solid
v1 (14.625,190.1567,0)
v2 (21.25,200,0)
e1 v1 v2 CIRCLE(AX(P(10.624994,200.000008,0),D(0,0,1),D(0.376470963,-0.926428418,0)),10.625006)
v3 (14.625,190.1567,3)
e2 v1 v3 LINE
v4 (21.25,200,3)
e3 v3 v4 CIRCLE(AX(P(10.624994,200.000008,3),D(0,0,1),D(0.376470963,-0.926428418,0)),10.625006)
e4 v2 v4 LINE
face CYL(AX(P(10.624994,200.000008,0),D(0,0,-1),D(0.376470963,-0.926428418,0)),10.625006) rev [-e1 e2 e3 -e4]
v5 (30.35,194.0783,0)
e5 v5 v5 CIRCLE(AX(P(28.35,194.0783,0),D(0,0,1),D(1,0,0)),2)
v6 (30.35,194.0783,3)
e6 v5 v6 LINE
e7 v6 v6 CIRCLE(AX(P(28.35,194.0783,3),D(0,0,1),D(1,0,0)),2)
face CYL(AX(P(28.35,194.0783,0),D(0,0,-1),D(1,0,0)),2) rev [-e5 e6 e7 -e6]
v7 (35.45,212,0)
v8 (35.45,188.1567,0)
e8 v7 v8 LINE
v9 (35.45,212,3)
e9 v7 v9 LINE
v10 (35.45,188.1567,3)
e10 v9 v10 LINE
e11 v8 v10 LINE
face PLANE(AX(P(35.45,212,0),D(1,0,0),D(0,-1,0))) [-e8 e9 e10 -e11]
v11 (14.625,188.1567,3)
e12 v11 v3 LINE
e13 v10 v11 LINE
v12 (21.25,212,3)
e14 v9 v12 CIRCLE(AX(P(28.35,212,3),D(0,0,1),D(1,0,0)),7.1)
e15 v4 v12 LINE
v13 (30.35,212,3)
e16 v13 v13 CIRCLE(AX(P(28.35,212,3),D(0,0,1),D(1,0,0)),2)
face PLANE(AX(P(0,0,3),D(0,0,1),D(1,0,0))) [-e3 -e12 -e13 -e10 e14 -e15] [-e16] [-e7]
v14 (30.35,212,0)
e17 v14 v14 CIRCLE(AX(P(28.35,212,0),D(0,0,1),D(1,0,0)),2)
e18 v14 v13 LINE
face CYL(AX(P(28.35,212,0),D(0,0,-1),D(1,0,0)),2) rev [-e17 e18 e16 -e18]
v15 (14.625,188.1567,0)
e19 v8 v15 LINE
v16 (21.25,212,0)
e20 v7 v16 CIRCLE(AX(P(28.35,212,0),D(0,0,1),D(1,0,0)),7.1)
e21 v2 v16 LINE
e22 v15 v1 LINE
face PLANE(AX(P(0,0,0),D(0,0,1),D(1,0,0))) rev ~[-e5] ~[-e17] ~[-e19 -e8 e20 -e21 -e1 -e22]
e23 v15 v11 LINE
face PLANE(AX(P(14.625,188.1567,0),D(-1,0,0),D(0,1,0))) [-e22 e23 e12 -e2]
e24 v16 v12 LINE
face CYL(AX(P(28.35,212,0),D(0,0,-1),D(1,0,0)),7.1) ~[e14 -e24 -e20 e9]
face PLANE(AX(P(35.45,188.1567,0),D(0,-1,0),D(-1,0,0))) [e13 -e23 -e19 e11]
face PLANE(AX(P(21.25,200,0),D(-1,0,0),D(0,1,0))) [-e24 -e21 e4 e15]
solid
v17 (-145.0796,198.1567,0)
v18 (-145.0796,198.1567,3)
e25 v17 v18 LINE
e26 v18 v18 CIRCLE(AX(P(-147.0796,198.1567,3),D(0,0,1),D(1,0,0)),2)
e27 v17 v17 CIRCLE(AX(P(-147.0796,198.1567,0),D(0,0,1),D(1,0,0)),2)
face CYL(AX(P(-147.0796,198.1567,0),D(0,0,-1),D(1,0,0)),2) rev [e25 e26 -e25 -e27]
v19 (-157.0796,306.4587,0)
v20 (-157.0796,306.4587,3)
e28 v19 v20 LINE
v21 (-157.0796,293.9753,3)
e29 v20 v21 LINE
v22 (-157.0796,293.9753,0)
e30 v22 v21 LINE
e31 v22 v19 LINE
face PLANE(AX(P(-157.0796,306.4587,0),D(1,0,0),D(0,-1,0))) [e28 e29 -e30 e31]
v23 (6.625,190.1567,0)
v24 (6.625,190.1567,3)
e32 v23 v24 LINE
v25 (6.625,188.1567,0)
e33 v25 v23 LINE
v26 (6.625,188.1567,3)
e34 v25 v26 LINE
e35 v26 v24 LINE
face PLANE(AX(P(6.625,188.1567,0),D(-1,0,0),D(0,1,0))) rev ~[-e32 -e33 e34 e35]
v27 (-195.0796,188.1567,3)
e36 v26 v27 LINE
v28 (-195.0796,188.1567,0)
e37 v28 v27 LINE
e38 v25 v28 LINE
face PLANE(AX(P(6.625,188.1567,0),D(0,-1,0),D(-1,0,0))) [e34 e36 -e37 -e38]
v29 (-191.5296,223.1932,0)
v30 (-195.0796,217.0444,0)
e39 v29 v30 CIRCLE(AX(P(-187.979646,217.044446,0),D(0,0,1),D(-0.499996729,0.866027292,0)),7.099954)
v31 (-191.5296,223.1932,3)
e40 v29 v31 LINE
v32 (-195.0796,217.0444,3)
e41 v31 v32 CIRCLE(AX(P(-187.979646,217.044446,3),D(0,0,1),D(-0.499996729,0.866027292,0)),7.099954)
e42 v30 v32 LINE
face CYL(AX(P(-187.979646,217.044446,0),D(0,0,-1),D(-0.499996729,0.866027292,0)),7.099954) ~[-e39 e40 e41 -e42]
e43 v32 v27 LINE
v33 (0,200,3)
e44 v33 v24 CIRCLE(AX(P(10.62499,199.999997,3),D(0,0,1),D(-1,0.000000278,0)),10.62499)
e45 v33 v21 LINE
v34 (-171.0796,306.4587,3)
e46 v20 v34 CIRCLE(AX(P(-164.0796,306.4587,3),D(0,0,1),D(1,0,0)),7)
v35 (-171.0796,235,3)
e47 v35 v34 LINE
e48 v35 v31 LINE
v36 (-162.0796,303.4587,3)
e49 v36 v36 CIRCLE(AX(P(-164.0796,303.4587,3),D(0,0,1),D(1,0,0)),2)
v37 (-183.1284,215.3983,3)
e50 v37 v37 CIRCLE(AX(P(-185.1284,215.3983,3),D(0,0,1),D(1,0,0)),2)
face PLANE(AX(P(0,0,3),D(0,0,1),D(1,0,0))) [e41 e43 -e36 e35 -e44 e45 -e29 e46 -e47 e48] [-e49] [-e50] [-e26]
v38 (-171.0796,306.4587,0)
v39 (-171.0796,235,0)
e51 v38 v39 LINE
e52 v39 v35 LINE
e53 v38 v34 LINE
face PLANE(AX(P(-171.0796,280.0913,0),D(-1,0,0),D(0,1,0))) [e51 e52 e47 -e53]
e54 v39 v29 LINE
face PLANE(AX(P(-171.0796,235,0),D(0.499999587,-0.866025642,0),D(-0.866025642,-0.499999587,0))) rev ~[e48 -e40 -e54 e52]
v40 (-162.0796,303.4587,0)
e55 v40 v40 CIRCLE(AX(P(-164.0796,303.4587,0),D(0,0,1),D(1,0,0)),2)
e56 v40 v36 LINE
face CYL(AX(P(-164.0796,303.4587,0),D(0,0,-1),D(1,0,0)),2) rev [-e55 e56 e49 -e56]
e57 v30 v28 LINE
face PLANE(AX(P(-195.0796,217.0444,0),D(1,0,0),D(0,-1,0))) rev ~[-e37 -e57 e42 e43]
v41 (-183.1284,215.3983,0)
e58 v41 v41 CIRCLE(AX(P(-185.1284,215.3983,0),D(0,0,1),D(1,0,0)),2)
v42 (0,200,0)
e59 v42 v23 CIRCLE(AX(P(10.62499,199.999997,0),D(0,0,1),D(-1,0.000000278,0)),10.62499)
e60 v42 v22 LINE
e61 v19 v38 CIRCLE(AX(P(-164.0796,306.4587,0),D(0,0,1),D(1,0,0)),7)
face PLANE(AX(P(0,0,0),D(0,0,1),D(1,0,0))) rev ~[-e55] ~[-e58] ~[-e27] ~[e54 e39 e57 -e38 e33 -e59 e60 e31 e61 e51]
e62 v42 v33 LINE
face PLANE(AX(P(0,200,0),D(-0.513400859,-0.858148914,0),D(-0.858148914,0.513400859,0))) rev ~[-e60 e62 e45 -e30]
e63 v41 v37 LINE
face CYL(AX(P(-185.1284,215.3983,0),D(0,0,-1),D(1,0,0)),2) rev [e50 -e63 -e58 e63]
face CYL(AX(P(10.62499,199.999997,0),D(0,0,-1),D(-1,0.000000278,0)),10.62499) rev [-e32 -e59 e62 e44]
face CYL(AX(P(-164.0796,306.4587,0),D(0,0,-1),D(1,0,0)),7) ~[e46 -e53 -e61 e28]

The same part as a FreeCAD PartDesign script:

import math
import FreeCAD as App
import Part
import Sketcher
from FreeCAD import Vector
Q = App.Units.Quantity

doc = App.newDocument("Part")
params = doc.addObject("Spreadsheet::Sheet", "Params")
for row, (alias, value) in enumerate([
    ("sketch1_diameter", "4 mm"),
    ("sketch1_radius", "7 mm"),
    ("sketch1_radius2", "7.1 mm"),
    ("sketch1_height", "2 mm"),
    ("sketch1_height2", "12 mm"),
    ("pad1_length", "3 mm"),
], start=1):
    params.set(f"A{row}", alias)
    params.set(f"B{row}", "=" + value)
    params.setAlias(f"B{row}", alias)

body = doc.addObject("PartDesign::Body", "Body")
body.AllowCompound = True

sketch1 = body.newObject("Sketcher::SketchObject", "Sketch")
sketch1.AttachmentSupport = (doc.getObject("XY_Plane"), [""])
sketch1.MapMode = "FlatFace"
sketch1.addGeometry(Part.LineSegment(Vector(-171.1, 306.5, 0), Vector(-171.1, 235, 0)), False)
sketch1.addGeometry(Part.LineSegment(Vector(-171.1, 235, 0), Vector(-191.5, 223.2, 0)), False)
sketch1.addGeometry(Part.ArcOfCircle(Part.Circle(Vector(-188, 217, 0), Vector(0, 0, 1), 7.1), math.radians(120), math.radians(180)), False)
sketch1.addGeometry(Part.LineSegment(Vector(-195.1, 217, 0), Vector(-195.1, 188.2, 0)), False)
sketch1.addGeometry(Part.LineSegment(Vector(-195.1, 188.2, 0), Vector(6.6, 188.2, 0)), False)
sketch1.addGeometry(Part.LineSegment(Vector(6.6, 188.2, 0), Vector(6.6, 190.2, 0)), False)
sketch1.addGeometry(Part.ArcOfCircle(Part.Circle(Vector(10.6, 200, 0), Vector(0, 0, 1), 10.6), math.radians(180), math.radians(248)), False)
sketch1.addGeometry(Part.LineSegment(Vector(0, 200, 0), Vector(-157.1, 294, 0)), False)
sketch1.addGeometry(Part.LineSegment(Vector(-157.1, 294, 0), Vector(-157.1, 306.5, 0)), False)
sketch1.addGeometry(Part.ArcOfCircle(Part.Circle(Vector(-164.1, 306.5, 0), Vector(0, 0, 1), 7), math.radians(0), math.radians(180)), False)
sketch1.addGeometry(Part.Circle(Vector(-185.1, 215.4, 0), Vector(0, 0, 1), 2), False)
sketch1.addGeometry(Part.Circle(Vector(-147.1, 198.2, 0), Vector(0, 0, 1), 2), False)
sketch1.addGeometry(Part.Circle(Vector(-164.1, 303.5, 0), Vector(0, 0, 1), 2), False)
sketch1.addGeometry(Part.LineSegment(Vector(35.5, 188.2, 0), Vector(35.5, 212, 0)), False)
sketch1.addGeometry(Part.ArcOfCircle(Part.Circle(Vector(28.4, 212, 0), Vector(0, 0, 1), 7.1), math.radians(0), math.radians(180)), False)
sketch1.addGeometry(Part.LineSegment(Vector(21.2, 212, 0), Vector(21.2, 200, 0)), False)
sketch1.addGeometry(Part.ArcOfCircle(Part.Circle(Vector(10.6, 200, 0), Vector(0, 0, 1), 10.6), math.radians(-68), math.radians(0)), False)
sketch1.addGeometry(Part.LineSegment(Vector(14.6, 190.2, 0), Vector(14.6, 188.2, 0)), False)
sketch1.addGeometry(Part.LineSegment(Vector(14.6, 188.2, 0), Vector(35.5, 188.2, 0)), False)
sketch1.addGeometry(Part.Circle(Vector(28.4, 194.1, 0), Vector(0, 0, 1), 2), False)
sketch1.addGeometry(Part.Circle(Vector(28.4, 212, 0), Vector(0, 0, 1), 2), False)
sketch1.addConstraint(Sketcher.Constraint("Coincident", 0, 2, 1, 1))
sketch1.addConstraint(Sketcher.Constraint("Tangent", 1, 2, 2, 1))
sketch1.addConstraint(Sketcher.Constraint("Tangent", 2, 2, 3, 1))
sketch1.addConstraint(Sketcher.Constraint("Coincident", 3, 2, 4, 1))
sketch1.addConstraint(Sketcher.Constraint("Coincident", 4, 2, 5, 1))
sketch1.addConstraint(Sketcher.Constraint("Coincident", 5, 2, 6, 2))
sketch1.addConstraint(Sketcher.Constraint("Coincident", 6, 1, 7, 1))
sketch1.addConstraint(Sketcher.Constraint("Coincident", 7, 2, 8, 1))
sketch1.addConstraint(Sketcher.Constraint("Tangent", 8, 2, 9, 1))
sketch1.addConstraint(Sketcher.Constraint("Tangent", 9, 2, 0, 1))
sketch1.addConstraint(Sketcher.Constraint("Tangent", 13, 2, 14, 1))
sketch1.addConstraint(Sketcher.Constraint("Tangent", 14, 2, 15, 1))
sketch1.addConstraint(Sketcher.Constraint("Tangent", 15, 2, 16, 2))
sketch1.addConstraint(Sketcher.Constraint("Coincident", 16, 1, 17, 1))
sketch1.addConstraint(Sketcher.Constraint("Coincident", 17, 2, 18, 1))
sketch1.addConstraint(Sketcher.Constraint("Coincident", 18, 2, 13, 1))
sketch1.addConstraint(Sketcher.Constraint("Vertical", 0))
sketch1.addConstraint(Sketcher.Constraint("Vertical", 3))
sketch1.addConstraint(Sketcher.Constraint("Horizontal", 4))
sketch1.addConstraint(Sketcher.Constraint("Vertical", 5))
sketch1.addConstraint(Sketcher.Constraint("Vertical", 8))
sketch1.addConstraint(Sketcher.Constraint("Vertical", 13))
sketch1.addConstraint(Sketcher.Constraint("Vertical", 15))
sketch1.addConstraint(Sketcher.Constraint("Vertical", 17))
sketch1.addConstraint(Sketcher.Constraint("Horizontal", 18))
sketch1.addConstraint(Sketcher.Constraint("Coincident", 16, 3, 6, 3))
sketch1.addConstraint(Sketcher.Constraint("Coincident", 20, 3, 14, 3))
sketch1.addConstraint(Sketcher.Constraint("Equal", 10, 11))
sketch1.addConstraint(Sketcher.Constraint("Equal", 11, 12))
sketch1.addConstraint(Sketcher.Constraint("Equal", 2, 14))
sketch1.addConstraint(Sketcher.Constraint("Equal", 6, 16))
sketch1.addConstraint(Sketcher.Constraint("Equal", 12, 19))
sketch1.addConstraint(Sketcher.Constraint("Equal", 19, 20))
sketch1.addConstraint(Sketcher.Constraint("PointOnObject", 6, 1, -2))
sketch1.addConstraint(Sketcher.Constraint("Horizontal", 16, 3, 6, 1))
sketch1.addConstraint(Sketcher.Constraint("Horizontal", 5, 2, 16, 1))
sketch1.addConstraint(Sketcher.Constraint("Horizontal", 4, 2, 17, 2))
sketch1.addConstraint(Sketcher.Constraint("Vertical", 9, 3, 12, 3))
sketch1.addConstraint(Sketcher.Constraint("Vertical", 14, 3, 19, 3))
sketch1.addConstraint(Sketcher.Constraint("Diameter", 10, Q("4 mm")))
sketch1.addConstraint(Sketcher.Constraint("Radius", 9, Q("7 mm")))
sketch1.addConstraint(Sketcher.Constraint("Radius", 2, Q("7.1 mm")))
sketch1.addConstraint(Sketcher.Constraint("DistanceY", 5, 1, 5, 2, Q("2 mm")))
sketch1.addConstraint(Sketcher.Constraint("DistanceY", 15, 2, 15, 1, Q("12 mm")))
sketch1.addConstraint(Sketcher.Constraint("DistanceY", -1, 1, 6, 3, Q("200 mm")))
sketch1.addConstraint(Sketcher.Constraint("Radius", 6, Q("10.625 mm")))
sketch1.addConstraint(Sketcher.Constraint("DistanceY", 12, 3, 9, 3, Q("3 mm")))
sketch1.addConstraint(Sketcher.Constraint("DistanceX", 0, 2, 11, 3, Q("24 mm")))
sketch1.addConstraint(Sketcher.Constraint("DistanceX", 2, 2, 0, 2, Q("24 mm")))
sketch1.addConstraint(Sketcher.Constraint("DistanceY", 3, 2, 11, 3, Q("10 mm")))
sketch1.addConstraint(Sketcher.Constraint("DistanceX", 4, 2, 6, 3, Q("4 mm")))
sketch1.addConstraint(Sketcher.Constraint("Angle", 1, Q("-150 deg")))
sketch1.addConstraint(Sketcher.Constraint("DistanceY", -1, 1, 0, 2, Q("235 mm")))
sketch1.addConstraint(Sketcher.Constraint("Angle", 7, Q("149.1094 deg")))
sketch1.addConstraint(Sketcher.Constraint("DistanceY", 19, 3, 10, 3, Q("21.32 mm")))
sketch1.addConstraint(Sketcher.Constraint("DistanceX", 4, 1, 4, 2, Q("201.7046 mm")))
sketch1.addConstraint(Sketcher.Constraint("DistanceY", 0, 2, 0, 1, Q("71.4587 mm")))
sketch1.addConstraint(Sketcher.Constraint("DistanceY", 10, 3, 2, 3, Q("1.646 mm")))
sketch1.addConstraint(Sketcher.Constraint("DistanceX", 10, 3, -1, 1, Q("185.1284 mm")))
sketch1.setExpression("Constraints[39]", "Params.sketch1_diameter")
sketch1.setExpression("Constraints[40]", "Params.sketch1_radius")
sketch1.setExpression("Constraints[41]", "Params.sketch1_radius2")
sketch1.setExpression("Constraints[42]", "Params.sketch1_height")
sketch1.setExpression("Constraints[43]", "Params.sketch1_height2")
pad1 = body.newObject("PartDesign::Pad", "Pad")
pad1.Profile = sketch1
pad1.setExpression("Length", "Params.pad1_length")

doc.recompute()
